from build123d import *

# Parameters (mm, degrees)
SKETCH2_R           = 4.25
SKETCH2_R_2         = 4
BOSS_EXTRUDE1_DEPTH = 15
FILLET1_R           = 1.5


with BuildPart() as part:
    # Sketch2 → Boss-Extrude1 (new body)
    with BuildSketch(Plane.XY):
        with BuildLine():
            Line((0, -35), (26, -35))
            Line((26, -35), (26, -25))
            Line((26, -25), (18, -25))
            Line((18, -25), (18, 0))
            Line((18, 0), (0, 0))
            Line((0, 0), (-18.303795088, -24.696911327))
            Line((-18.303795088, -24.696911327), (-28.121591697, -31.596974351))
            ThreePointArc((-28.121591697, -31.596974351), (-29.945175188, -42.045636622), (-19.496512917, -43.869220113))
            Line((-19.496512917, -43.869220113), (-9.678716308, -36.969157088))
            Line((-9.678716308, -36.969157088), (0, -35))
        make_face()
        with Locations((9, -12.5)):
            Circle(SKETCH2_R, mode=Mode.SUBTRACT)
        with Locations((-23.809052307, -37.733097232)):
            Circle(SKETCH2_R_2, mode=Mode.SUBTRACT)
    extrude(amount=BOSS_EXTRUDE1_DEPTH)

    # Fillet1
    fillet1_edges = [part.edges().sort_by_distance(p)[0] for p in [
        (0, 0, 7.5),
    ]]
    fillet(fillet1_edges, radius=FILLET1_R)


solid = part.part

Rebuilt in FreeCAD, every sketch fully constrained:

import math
import FreeCAD as App
import Part
import Sketcher

V = App.Vector
Q = App.Units.Quantity


def edges_at(feature, points):
    """Names of the edges that pass closest to the given points."""
    edges = feature.Shape.Edges
    near = lambda p: min(range(len(edges)), key=lambda i: edges[i].distToShape(Part.Vertex(*p))[0])
    return sorted({f"Edge{near(p) + 1}" for p in points})

doc = App.newDocument("Part")
body = doc.addObject("PartDesign::Body", "Body")

# Sketch on XY plane
sketch1 = body.newObject("Sketcher::SketchObject", "Sketch")
sketch1.AttachmentSupport = (doc.getObject("XY_Plane"), [""])
sketch1.MapMode = "FlatFace"
sketch1.addGeometry([
    Part.LineSegment(V(0, -35, 0), V(26, -35, 0)),  # 0
    Part.LineSegment(V(26, -35, 0), V(26, -25, 0)),  # 1
    Part.LineSegment(V(26, -25, 0), V(18, -25, 0)),  # 2
    Part.LineSegment(V(18, -25, 0), V(18, 0, 0)),  # 3
    Part.LineSegment(V(18, 0, 0), V(0, 0, 0)),  # 4
    Part.LineSegment(V(0, 0, 0), V(-18.3, -24.7, 0)),  # 5
    Part.LineSegment(V(-18.3, -24.7, 0), V(-28.1, -31.6, 0)),  # 6
    Part.ArcOfCircle(Part.Circle(V(-23.8, -37.7, 0), V(0, 0, 1), 7.5), math.radians(125), math.radians(305)),  # 7
    Part.LineSegment(V(-19.5, -43.9, 0), V(-9.7, -37, 0)),  # 8
    Part.LineSegment(V(-9.7, -37, 0), V(0, -35, 0)),  # 9
    Part.Circle(V(-23.8, -37.7, 0), V(0, 0, 1), 4),  # 10
    Part.Circle(V(9, -12.5, 0), V(0, 0, 1), 4.2),  # 11
], False)
sketch1.addConstraint([
    Sketcher.Constraint("Coincident", 0, 2, 1, 1),
    Sketcher.Constraint("Coincident", 1, 2, 2, 1),
    Sketcher.Constraint("Coincident", 2, 2, 3, 1),
    Sketcher.Constraint("Coincident", 3, 2, 4, 1),
    Sketcher.Constraint("Coincident", 4, 2, 5, 1),
    Sketcher.Constraint("Coincident", 5, 2, 6, 1),
    Sketcher.Constraint("Tangent", 6, 2, 7, 1),
    Sketcher.Constraint("Tangent", 7, 2, 8, 1),
    Sketcher.Constraint("Coincident", 8, 2, 9, 1),
    Sketcher.Constraint("Coincident", 9, 2, 0, 1),
    Sketcher.Constraint("Horizontal", 0),
    Sketcher.Constraint("Vertical", 1),
    Sketcher.Constraint("Horizontal", 2),
    Sketcher.Constraint("Vertical", 3),
    Sketcher.Constraint("Horizontal", 4),
    Sketcher.Constraint("Coincident", 4, 2, -1, 1),
    Sketcher.Constraint("Coincident", 10, 3, 7, 3),
    Sketcher.Constraint("PointOnObject", 9, 2, -2),
    Sketcher.Constraint("Parallel", 6, 8),
    Sketcher.Constraint("Equal", 6, 8),
    Sketcher.Constraint("Diameter", 10, Q("8 mm")),
    Sketcher.Constraint("Diameter", 11, Q("8.5 mm")),
    Sketcher.Constraint("Radius", 7, Q("7.5 mm")),
    Sketcher.Constraint("DistanceX", 0, 1, 0, 2, Q("26 mm")),
    Sketcher.Constraint("DistanceX", 2, 2, 2, 1, Q("8 mm")),
    Sketcher.Constraint("DistanceY", 1, 1, 1, 2, Q("10 mm")),
    Sketcher.Constraint("DistanceY", 3, 1, 3, 2, Q("25 mm")),
    Sketcher.Constraint("Distance", 6, Q("12 mm")),
    Sketcher.Constraint("DistanceX", -1, 1, 11, 3, Q("9 mm")),
    Sketcher.Constraint("Angle", 6, Q("-144.9 deg")),
    Sketcher.Constraint("Angle", 9, Q("11.5 deg")),
    Sketcher.Constraint("DistanceY", 11, 3, -1, 1, Q("12.5 mm")),
    Sketcher.Constraint("Distance", 9, Q("9.877 mm")),
])
pad1 = body.newObject("PartDesign::Pad", "Pad")
pad1.Profile = sketch1
pad1.Length = 15
doc.recompute()

fillet = body.newObject("PartDesign::Fillet", "Fillet")
fillet.Base = (pad1, edges_at(pad1, [(0, 0, 7.5)]))
fillet.Radius = 1.5

doc.recompute()
